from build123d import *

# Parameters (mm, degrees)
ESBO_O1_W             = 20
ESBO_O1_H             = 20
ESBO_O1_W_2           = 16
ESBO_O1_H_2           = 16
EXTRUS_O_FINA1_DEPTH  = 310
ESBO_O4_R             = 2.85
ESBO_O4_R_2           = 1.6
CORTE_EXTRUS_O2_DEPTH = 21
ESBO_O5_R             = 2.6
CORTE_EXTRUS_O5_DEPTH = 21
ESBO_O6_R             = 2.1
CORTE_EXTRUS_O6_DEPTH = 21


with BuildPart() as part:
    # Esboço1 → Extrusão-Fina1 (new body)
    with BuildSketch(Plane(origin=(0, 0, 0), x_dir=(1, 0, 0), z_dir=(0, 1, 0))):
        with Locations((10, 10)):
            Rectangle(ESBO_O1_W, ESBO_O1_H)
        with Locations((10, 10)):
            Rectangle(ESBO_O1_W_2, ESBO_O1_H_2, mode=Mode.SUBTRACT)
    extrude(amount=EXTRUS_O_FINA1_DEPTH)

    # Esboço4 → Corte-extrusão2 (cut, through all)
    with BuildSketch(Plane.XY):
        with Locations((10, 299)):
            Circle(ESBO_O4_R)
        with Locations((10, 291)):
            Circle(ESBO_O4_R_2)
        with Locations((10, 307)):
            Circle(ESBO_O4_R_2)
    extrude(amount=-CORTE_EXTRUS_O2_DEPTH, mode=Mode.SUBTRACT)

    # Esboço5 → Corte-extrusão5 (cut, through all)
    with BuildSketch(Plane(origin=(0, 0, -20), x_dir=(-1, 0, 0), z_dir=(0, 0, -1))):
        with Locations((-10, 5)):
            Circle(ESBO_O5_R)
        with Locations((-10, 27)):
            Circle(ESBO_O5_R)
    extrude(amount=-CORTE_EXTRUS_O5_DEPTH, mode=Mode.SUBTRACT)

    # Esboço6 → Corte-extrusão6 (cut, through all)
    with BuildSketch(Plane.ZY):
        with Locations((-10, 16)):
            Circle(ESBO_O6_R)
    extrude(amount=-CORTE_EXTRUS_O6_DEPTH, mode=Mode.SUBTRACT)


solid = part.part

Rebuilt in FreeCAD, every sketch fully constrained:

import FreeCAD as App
import Part
import Sketcher
from FreeCAD import Vector

doc = App.newDocument("Part")
body = doc.addObject("PartDesign::Body", "Body")

# Sketch on XZ plane
sketch1 = body.newObject("Sketcher::SketchObject", "Sketch")
sketch1.AttachmentSupport = (doc.getObject("XZ_Plane"), [""])
sketch1.MapMode = "FlatFace"
sketch1.addGeometry(Part.LineSegment(Vector(0, -20, 0), Vector(0, 0, 0)), False)
sketch1.addGeometry(Part.LineSegment(Vector(0, 0, 0), Vector(20, 0, 0)), False)
sketch1.addGeometry(Part.LineSegment(Vector(20, 0, 0), Vector(20, -20, 0)), False)
sketch1.addGeometry(Part.LineSegment(Vector(20, -20, 0), Vector(0, -20, 0)), False)
sketch1.addGeometry(Part.LineSegment(Vector(18, -2, 0), Vector(2, -2, 0)), False)
sketch1.addGeometry(Part.LineSegment(Vector(2, -2, 0), Vector(2, -18, 0)), False)
sketch1.addGeometry(Part.LineSegment(Vector(2, -18, 0), Vector(18, -18, 0)), False)
sketch1.addGeometry(Part.LineSegment(Vector(18, -18, 0), Vector(18, -2, 0)), False)
sketch1.addConstraint(Sketcher.Constraint("Coincident", 0, 2, 1, 1))
sketch1.addConstraint(Sketcher.Constraint("Coincident", 1, 2, 2, 1))
sketch1.addConstraint(Sketcher.Constraint("Coincident", 2, 2, 3, 1))
sketch1.addConstraint(Sketcher.Constraint("Coincident", 3, 2, 0, 1))
sketch1.addConstraint(Sketcher.Constraint("Coincident", 4, 2, 5, 1))
sketch1.addConstraint(Sketcher.Constraint("Coincident", 5, 2, 6, 1))
sketch1.addConstraint(Sketcher.Constraint("Coincident", 6, 2, 7, 1))
sketch1.addConstraint(Sketcher.Constraint("Coincident", 7, 2, 4, 1))
sketch1.addConstraint(Sketcher.Constraint("Vertical", 0))
sketch1.addConstraint(Sketcher.Constraint("Horizontal", 1))
sketch1.addConstraint(Sketcher.Constraint("Vertical", 2))
sketch1.addConstraint(Sketcher.Constraint("Horizontal", 3))
sketch1.addConstraint(Sketcher.Constraint("Horizontal", 4))
sketch1.addConstraint(Sketcher.Constraint("Vertical", 5))
sketch1.addConstraint(Sketcher.Constraint("Horizontal", 6))
sketch1.addConstraint(Sketcher.Constraint("Vertical", 7))
sketch1.addConstraint(Sketcher.Constraint("Coincident", 0, 2, -1, 1))
sketch1.addConstraint(Sketcher.Constraint("Equal", 3, 0))
sketch1.addConstraint(Sketcher.Constraint("Equal", 6, 5))
sketch1.addConstraint(Sketcher.Constraint("DistanceX", 1, 1, 1, 2, 20.0))
sketch1.addConstraint(Sketcher.Constraint("DistanceX", 4, 2, 4, 1, 16.0))
sketch1.addConstraint(Sketcher.Constraint("DistanceX", -1, 1, 4, 2, 2.0))
sketch1.addConstraint(Sketcher.Constraint("DistanceY", 4, 2, -1, 1, 2.0))
pad1 = body.newObject("PartDesign::Pad", "Pad")
pad1.Profile = sketch1
pad1.Length = 310
pad1.Reversed = True

# Sketch on XY plane
sketch2 = body.newObject("Sketcher::SketchObject", "Sketch001")
sketch2.AttachmentSupport = (doc.getObject("XY_Plane"), [""])
sketch2.MapMode = "FlatFace"
sketch2.addGeometry(Part.Circle(Vector(10, 299, 0), Vector(0, 0, 1), 2.9), False)
sketch2.addGeometry(Part.Circle(Vector(10, 291, 0), Vector(0, 0, 1), 1.6), False)
sketch2.addGeometry(Part.Circle(Vector(10, 307, 0), Vector(0, 0, 1), 1.6), False)
sketch2.addConstraint(Sketcher.Constraint("Equal", 1, 2))
sketch2.addConstraint(Sketcher.Constraint("Vertical", 0, 3, 1, 3))
sketch2.addConstraint(Sketcher.Constraint("Vertical", 1, 3, 2, 3))
sketch2.addConstraint(Sketcher.Constraint("Diameter", 0, 5.7))
sketch2.addConstraint(Sketcher.Constraint("Diameter", 1, 3.2))
sketch2.addConstraint(Sketcher.Constraint("DistanceX", -1, 1, 0, 3, 10.0))
sketch2.addConstraint(Sketcher.Constraint("DistanceY", -1, 1, 0, 3, 299.0))
sketch2.addConstraint(Sketcher.Constraint("DistanceY", -1, 1, 1, 3, 291.0))
sketch2.addConstraint(Sketcher.Constraint("DistanceY", -1, 1, 2, 3, 307.0))
pocket1 = body.newObject("PartDesign::Pocket", "Pocket")
pocket1.Profile = sketch2
pocket1.Type = "ThroughAll"

# Sketch on XY plane
sketch3 = body.newObject("Sketcher::SketchObject", "Sketch002")
sketch3.AttachmentSupport = (doc.getObject("XY_Plane"), [""])
sketch3.MapMode = "FlatFace"
sketch3.AttachmentOffset = App.Placement(Vector(0, 0, -20), App.Rotation())
sketch3.addGeometry(Part.Circle(Vector(10, 5, 0), Vector(0, 0, 1), 2.6), False)
sketch3.addGeometry(Part.Circle(Vector(10, 27, 0), Vector(0, 0, 1), 2.6), False)
sketch3.addConstraint(Sketcher.Constraint("Equal", 0, 1))
sketch3.addConstraint(Sketcher.Constraint("Vertical", 0, 3, 1, 3))
sketch3.addConstraint(Sketcher.Constraint("Diameter", 0, 5.2))
sketch3.addConstraint(Sketcher.Constraint("DistanceX", -1, 1, 0, 3, 10.0))
sketch3.addConstraint(Sketcher.Constraint("DistanceY", -1, 1, 0, 3, 5.0))
sketch3.addConstraint(Sketcher.Constraint("DistanceY", -1, 1, 1, 3, 27.0))
pocket2 = body.newObject("PartDesign::Pocket", "Pocket001")
pocket2.Profile = sketch3
pocket2.Type = "ThroughAll"
pocket2.Reversed = True

# Sketch on YZ plane
sketch4 = body.newObject("Sketcher::SketchObject", "Sketch003")
sketch4.AttachmentSupport = (doc.getObject("YZ_Plane"), [""])
sketch4.MapMode = "FlatFace"
sketch4.addGeometry(Part.Circle(Vector(16, -10, 0), Vector(0, 0, 1), 2.1), False)
sketch4.addConstraint(Sketcher.Constraint("Diameter", 0, 4.2))
sketch4.addConstraint(Sketcher.Constraint("DistanceX", -1, 1, 0, 3, 16.0))
sketch4.addConstraint(Sketcher.Constraint("DistanceY", 0, 3, -1, 1, 10.0))
pocket3 = body.newObject("PartDesign::Pocket", "Pocket002")
pocket3.Profile = sketch4
pocket3.Type = "ThroughAll"
pocket3.Reversed = True

doc.recompute()
